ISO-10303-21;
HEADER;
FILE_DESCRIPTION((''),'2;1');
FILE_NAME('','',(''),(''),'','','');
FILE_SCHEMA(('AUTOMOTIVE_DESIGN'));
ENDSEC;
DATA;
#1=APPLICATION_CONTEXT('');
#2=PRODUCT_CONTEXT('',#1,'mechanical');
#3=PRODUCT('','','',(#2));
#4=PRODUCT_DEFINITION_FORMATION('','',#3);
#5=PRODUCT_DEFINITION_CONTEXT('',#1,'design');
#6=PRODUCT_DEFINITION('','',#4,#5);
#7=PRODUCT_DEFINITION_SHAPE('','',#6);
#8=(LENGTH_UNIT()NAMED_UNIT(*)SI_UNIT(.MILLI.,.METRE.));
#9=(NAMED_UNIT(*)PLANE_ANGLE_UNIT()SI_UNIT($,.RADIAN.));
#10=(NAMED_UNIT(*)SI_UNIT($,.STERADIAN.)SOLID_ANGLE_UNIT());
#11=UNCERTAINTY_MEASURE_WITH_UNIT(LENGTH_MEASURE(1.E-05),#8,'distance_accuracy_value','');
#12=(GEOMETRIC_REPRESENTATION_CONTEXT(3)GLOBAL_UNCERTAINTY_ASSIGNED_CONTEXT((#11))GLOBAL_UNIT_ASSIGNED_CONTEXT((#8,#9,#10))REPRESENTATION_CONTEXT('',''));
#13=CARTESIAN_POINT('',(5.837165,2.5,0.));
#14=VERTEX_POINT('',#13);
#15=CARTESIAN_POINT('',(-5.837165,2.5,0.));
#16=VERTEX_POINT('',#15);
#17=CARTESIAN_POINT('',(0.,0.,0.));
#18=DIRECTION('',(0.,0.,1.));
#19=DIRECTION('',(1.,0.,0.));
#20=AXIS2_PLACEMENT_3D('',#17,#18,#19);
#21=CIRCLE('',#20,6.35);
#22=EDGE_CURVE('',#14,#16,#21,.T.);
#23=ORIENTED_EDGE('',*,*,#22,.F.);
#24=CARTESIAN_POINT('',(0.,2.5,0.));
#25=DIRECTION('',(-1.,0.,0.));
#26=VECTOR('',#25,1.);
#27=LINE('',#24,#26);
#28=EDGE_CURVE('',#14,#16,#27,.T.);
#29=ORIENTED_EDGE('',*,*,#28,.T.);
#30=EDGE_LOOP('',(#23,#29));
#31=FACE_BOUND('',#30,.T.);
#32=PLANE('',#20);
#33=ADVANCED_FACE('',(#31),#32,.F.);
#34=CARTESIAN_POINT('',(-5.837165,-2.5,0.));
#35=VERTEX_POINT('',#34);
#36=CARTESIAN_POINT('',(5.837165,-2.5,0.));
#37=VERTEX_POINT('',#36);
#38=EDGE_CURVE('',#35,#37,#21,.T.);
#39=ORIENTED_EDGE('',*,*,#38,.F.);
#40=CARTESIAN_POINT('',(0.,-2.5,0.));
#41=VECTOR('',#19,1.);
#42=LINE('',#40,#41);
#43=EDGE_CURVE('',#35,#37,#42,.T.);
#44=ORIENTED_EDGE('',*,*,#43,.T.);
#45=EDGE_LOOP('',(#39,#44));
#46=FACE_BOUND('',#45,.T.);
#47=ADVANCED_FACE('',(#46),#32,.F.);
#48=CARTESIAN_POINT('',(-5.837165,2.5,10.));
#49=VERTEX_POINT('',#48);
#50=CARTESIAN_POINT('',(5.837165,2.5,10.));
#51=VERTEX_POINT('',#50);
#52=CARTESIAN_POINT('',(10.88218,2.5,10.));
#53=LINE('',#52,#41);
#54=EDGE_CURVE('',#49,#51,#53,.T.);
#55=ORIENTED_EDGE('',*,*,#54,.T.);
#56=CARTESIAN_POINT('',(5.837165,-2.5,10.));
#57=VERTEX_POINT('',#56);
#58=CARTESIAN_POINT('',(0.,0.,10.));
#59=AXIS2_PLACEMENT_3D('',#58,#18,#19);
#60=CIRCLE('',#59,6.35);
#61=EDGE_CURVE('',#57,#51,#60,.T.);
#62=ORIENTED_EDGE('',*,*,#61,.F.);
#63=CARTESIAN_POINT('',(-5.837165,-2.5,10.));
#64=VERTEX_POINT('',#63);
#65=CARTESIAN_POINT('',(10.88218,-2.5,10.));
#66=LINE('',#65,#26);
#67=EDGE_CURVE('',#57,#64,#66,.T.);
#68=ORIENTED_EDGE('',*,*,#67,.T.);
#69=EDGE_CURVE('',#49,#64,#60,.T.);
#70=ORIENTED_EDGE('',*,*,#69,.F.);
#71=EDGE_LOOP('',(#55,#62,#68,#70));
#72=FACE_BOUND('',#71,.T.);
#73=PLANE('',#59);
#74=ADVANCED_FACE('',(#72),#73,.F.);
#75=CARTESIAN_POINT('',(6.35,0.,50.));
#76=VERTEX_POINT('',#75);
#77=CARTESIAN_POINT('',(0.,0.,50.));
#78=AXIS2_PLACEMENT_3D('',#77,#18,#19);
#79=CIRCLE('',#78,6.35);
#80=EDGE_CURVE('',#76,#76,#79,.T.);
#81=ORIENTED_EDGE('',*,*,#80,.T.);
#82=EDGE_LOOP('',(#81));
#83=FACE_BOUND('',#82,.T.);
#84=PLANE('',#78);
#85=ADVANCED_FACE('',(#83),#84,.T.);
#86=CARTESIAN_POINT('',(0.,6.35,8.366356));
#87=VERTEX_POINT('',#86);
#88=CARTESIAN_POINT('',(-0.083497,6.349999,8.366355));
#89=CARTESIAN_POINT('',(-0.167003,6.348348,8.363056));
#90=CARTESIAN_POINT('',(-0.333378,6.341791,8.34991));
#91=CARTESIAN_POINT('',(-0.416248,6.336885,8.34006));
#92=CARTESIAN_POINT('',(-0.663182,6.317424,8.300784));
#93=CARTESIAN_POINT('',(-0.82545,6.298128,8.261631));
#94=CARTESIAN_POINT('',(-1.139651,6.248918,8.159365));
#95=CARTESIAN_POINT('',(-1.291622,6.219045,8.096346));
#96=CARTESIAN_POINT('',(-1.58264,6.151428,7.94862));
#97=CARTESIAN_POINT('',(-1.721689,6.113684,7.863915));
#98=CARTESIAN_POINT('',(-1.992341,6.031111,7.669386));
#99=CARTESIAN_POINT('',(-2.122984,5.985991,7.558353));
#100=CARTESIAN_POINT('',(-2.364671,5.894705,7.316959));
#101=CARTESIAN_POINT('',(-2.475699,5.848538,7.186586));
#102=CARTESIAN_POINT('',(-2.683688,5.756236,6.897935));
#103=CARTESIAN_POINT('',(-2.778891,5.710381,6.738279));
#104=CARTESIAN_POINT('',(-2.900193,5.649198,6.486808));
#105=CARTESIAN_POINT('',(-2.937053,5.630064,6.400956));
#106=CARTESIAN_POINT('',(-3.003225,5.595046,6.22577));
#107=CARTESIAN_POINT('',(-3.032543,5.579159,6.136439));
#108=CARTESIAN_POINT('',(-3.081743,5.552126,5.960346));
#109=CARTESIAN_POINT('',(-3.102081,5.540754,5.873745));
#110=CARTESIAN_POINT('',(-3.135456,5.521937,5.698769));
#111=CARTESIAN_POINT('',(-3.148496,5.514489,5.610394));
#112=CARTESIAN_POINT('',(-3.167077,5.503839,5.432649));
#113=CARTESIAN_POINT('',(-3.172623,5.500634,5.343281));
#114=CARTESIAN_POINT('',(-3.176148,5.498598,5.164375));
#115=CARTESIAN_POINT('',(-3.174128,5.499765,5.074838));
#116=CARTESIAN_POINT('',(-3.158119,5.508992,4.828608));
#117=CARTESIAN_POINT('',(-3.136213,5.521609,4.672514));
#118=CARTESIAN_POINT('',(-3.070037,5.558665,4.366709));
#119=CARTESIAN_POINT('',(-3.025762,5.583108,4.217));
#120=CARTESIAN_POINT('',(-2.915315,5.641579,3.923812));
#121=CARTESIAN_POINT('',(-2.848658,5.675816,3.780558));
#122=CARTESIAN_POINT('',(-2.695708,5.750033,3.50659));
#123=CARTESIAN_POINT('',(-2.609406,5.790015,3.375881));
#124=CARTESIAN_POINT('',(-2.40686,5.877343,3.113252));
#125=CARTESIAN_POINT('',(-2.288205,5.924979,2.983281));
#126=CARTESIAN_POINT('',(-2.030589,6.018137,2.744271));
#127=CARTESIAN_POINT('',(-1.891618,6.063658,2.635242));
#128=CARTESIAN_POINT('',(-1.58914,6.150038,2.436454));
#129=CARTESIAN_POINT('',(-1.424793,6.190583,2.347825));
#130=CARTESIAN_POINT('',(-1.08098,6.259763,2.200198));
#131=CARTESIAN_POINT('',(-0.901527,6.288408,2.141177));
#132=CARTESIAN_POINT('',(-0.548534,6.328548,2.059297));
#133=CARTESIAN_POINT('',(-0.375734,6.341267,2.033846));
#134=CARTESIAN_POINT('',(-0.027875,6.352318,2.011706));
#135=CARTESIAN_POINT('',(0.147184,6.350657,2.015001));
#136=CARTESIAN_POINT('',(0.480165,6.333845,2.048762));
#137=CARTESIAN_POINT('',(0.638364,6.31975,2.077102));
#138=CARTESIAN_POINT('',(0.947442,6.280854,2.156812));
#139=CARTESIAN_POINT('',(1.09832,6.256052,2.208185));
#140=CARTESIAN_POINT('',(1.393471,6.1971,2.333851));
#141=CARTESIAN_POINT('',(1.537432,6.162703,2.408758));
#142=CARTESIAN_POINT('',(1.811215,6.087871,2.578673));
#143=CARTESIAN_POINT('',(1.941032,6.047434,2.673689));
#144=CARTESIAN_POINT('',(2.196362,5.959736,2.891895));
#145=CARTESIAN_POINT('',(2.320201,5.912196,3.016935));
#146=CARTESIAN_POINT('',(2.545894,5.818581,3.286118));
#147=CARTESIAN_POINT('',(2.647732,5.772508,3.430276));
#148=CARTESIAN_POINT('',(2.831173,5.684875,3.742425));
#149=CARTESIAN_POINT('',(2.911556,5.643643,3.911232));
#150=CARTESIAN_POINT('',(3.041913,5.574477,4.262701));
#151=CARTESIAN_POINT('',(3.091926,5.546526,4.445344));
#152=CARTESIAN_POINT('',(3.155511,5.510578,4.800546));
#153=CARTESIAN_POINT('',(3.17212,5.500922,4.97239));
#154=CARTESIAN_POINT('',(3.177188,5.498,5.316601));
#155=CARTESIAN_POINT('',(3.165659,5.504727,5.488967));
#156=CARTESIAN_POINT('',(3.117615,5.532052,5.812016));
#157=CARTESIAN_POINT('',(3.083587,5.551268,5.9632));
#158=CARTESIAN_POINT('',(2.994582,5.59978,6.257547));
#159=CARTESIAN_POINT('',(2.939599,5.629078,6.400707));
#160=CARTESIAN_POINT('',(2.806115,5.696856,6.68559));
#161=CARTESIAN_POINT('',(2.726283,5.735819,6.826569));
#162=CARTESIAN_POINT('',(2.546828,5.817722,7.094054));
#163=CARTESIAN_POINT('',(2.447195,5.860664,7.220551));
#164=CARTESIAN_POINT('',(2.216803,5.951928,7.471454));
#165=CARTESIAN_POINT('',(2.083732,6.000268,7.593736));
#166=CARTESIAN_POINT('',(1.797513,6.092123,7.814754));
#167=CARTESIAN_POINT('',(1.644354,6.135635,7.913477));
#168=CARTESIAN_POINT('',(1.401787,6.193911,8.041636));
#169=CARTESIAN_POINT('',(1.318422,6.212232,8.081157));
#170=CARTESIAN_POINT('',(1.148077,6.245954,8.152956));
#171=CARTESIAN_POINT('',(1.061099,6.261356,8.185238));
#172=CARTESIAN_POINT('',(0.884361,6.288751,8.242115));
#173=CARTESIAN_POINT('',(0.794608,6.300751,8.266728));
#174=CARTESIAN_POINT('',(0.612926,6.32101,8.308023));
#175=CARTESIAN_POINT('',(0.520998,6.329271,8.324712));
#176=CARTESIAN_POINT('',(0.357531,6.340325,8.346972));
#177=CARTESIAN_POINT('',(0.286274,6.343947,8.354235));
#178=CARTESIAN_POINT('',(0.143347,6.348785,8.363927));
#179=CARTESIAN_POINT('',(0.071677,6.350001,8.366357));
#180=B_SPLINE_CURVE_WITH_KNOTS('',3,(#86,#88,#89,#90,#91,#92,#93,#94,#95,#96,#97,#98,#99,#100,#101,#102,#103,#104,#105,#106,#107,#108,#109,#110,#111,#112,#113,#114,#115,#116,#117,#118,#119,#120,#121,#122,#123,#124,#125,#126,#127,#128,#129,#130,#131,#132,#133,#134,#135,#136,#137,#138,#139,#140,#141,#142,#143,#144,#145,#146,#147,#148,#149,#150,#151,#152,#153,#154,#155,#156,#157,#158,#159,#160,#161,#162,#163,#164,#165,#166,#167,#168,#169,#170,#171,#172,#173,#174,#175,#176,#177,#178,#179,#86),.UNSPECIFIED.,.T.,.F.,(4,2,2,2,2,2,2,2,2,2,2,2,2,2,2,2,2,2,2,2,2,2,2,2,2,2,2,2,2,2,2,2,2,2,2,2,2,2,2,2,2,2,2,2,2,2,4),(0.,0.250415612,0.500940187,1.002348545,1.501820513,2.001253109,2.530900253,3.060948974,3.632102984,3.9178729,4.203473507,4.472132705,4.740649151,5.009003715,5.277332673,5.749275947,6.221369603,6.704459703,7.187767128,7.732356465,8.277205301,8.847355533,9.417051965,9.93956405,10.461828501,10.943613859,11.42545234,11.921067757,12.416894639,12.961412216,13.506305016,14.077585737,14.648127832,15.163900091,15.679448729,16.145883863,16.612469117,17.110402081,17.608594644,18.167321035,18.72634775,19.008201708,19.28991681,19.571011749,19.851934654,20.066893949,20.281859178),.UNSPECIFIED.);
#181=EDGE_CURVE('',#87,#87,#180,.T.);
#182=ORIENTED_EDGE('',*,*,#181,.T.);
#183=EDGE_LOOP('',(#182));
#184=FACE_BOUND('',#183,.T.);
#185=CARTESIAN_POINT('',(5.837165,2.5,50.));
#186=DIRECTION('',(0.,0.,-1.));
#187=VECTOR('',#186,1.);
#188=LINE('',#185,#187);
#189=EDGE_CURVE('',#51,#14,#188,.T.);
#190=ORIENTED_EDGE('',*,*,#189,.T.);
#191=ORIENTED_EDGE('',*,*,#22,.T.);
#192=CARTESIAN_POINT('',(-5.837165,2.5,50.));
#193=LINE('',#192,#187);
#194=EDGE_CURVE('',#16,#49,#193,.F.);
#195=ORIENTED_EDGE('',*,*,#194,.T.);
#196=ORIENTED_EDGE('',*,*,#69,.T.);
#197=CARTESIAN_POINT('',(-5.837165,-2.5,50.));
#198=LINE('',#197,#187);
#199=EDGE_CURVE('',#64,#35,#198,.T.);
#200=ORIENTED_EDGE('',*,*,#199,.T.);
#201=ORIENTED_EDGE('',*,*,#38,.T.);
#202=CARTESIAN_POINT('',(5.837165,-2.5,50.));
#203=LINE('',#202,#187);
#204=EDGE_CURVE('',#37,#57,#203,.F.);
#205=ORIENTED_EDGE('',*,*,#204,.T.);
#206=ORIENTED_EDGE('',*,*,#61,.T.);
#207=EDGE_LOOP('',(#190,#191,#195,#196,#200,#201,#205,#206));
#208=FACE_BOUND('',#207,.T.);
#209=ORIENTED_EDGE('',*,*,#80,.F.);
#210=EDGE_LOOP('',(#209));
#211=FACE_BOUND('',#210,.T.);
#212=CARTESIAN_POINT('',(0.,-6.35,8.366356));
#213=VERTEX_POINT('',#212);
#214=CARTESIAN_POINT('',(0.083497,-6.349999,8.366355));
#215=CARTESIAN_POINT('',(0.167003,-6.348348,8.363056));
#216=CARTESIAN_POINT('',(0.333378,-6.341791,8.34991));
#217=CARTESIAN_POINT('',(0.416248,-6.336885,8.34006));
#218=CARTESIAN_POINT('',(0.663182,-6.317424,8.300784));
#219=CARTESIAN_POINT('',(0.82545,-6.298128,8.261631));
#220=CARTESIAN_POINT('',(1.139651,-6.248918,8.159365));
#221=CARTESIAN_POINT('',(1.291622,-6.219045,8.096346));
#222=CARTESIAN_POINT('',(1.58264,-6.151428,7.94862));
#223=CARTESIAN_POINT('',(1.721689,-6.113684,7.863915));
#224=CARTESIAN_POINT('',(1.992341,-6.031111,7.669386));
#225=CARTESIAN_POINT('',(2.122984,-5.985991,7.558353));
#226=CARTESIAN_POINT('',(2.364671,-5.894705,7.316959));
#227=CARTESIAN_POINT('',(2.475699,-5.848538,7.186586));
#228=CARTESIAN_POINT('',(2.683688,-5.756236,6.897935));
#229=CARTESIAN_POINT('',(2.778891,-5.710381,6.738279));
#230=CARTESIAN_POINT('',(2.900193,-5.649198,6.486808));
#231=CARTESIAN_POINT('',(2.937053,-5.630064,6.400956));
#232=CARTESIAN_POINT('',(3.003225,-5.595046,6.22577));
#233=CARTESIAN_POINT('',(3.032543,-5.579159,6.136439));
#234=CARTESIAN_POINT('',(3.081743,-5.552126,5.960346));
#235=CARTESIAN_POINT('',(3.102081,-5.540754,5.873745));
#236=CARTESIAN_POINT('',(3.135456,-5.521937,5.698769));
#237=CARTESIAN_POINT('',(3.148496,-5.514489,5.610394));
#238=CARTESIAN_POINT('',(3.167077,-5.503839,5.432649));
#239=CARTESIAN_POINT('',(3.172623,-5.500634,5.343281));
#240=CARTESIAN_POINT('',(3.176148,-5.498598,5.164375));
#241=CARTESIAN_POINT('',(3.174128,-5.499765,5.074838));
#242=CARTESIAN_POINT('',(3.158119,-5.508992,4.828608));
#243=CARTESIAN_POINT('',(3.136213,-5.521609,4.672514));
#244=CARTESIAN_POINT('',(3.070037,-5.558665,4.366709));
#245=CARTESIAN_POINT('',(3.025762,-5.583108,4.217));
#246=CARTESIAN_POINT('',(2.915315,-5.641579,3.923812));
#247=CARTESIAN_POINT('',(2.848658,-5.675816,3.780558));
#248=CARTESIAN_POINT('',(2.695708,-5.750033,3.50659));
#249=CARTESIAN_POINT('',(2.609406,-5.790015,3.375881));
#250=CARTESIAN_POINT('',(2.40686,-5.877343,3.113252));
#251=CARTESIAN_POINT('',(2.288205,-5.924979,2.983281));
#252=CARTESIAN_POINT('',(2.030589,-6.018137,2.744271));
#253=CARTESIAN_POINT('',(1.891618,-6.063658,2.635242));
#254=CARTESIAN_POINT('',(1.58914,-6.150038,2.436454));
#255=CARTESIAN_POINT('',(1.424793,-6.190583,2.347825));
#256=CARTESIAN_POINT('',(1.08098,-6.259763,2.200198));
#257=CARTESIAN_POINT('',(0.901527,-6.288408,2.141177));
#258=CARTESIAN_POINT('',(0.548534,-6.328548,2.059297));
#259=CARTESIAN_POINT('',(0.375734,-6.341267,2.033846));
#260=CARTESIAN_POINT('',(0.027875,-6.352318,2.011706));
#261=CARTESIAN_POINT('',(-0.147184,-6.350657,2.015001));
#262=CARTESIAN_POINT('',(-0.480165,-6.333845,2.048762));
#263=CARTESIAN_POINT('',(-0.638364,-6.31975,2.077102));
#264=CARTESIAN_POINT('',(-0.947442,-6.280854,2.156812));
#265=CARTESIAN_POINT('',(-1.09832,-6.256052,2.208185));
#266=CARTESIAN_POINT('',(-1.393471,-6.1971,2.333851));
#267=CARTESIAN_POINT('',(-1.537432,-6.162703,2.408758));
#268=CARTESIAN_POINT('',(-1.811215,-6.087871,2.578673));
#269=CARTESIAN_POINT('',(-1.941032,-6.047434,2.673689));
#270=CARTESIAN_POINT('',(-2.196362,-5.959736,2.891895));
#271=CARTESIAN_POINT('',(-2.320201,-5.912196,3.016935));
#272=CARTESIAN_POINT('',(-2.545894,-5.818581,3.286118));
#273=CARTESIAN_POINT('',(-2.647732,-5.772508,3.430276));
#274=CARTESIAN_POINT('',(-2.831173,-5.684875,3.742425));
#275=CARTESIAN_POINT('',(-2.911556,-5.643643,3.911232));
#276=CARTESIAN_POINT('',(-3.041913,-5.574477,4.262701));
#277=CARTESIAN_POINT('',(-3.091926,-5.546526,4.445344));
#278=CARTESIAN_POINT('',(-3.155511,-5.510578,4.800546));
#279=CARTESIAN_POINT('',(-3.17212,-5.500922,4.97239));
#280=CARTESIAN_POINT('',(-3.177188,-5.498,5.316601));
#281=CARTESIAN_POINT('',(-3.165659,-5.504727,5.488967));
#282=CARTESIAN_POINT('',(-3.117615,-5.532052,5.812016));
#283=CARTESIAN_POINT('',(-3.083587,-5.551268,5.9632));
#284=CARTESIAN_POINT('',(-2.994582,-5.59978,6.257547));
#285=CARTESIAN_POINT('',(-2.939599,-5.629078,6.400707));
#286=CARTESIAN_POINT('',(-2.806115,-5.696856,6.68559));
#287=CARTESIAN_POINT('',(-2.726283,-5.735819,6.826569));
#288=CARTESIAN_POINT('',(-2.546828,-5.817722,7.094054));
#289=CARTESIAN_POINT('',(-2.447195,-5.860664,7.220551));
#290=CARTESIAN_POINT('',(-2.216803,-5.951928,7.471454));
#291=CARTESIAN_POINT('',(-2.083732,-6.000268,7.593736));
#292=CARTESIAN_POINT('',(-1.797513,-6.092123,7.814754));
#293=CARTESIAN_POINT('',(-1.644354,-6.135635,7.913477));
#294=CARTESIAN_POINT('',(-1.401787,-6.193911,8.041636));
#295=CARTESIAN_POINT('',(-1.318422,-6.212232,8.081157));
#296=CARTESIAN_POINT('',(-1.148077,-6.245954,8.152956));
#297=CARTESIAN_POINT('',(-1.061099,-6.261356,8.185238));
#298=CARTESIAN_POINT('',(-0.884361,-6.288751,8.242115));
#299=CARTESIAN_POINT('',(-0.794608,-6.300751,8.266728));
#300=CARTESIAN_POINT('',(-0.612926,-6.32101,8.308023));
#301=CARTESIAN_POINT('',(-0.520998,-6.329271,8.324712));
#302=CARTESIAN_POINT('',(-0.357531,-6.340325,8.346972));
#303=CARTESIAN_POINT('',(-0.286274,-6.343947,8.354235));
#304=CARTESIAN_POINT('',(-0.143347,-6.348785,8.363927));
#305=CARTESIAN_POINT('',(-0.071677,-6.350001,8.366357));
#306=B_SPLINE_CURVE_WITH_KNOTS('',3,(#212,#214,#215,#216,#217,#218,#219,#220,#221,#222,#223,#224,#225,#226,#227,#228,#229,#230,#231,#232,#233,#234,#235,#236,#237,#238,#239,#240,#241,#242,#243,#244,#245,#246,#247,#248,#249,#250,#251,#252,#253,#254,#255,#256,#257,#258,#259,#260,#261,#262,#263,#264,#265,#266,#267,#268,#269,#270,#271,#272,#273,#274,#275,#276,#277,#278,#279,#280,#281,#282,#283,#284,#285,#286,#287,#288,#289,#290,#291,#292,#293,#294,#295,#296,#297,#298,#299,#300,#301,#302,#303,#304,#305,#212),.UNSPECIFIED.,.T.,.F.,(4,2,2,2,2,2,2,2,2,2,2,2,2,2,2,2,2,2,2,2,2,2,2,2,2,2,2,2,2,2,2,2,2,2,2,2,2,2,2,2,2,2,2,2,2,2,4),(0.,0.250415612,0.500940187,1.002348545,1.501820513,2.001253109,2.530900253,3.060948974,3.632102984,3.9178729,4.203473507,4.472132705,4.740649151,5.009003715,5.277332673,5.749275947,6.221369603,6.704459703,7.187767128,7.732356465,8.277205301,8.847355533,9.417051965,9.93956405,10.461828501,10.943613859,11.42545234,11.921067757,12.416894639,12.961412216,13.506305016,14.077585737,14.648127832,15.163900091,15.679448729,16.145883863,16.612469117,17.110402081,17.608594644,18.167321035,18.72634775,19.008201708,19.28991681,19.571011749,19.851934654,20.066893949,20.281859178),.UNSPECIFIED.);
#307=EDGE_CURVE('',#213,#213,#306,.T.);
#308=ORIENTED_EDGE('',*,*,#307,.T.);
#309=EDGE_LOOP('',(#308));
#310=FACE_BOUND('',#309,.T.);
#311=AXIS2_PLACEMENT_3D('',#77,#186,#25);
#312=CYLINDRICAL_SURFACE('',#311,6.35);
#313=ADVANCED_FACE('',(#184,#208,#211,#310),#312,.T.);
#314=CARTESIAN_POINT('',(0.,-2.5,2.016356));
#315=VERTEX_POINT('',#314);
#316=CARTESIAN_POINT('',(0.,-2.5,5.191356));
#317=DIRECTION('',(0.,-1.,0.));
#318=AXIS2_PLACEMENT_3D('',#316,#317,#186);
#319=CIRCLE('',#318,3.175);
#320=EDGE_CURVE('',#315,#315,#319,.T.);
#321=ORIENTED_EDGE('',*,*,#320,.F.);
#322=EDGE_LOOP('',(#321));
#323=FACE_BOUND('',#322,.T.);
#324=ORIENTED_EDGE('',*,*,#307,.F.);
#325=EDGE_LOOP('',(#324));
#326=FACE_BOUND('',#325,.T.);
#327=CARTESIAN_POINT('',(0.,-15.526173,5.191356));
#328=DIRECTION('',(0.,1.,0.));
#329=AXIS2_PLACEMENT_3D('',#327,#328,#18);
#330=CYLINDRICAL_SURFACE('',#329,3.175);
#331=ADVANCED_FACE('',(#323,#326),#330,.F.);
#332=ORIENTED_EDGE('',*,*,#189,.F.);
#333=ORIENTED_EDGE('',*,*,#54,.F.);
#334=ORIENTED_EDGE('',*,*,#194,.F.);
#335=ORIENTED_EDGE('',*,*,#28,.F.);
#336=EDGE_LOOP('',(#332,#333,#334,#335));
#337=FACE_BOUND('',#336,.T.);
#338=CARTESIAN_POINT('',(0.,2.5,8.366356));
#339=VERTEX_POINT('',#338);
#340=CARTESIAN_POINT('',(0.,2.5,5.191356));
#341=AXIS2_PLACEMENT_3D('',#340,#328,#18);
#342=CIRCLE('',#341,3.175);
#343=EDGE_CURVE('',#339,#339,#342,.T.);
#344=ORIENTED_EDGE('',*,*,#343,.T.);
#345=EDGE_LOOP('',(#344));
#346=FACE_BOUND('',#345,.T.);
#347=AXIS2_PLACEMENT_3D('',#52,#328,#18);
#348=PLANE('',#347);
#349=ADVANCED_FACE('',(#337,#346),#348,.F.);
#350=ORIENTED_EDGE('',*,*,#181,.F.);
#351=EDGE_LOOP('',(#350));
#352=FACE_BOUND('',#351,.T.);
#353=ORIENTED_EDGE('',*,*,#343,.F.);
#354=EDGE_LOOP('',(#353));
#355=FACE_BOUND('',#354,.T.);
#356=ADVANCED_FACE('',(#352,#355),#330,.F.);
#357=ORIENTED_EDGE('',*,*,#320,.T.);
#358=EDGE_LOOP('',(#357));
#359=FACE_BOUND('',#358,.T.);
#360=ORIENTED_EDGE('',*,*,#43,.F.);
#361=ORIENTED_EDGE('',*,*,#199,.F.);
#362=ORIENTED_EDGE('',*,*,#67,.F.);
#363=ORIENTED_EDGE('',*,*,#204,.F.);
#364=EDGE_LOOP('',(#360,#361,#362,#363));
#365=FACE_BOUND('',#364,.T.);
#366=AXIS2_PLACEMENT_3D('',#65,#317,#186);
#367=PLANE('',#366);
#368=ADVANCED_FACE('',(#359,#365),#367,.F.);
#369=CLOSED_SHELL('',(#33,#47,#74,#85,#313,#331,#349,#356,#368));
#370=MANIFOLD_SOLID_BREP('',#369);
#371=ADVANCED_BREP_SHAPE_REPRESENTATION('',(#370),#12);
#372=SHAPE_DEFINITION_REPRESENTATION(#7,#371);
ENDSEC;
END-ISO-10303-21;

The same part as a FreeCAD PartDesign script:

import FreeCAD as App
import Part
import Sketcher
from FreeCAD import Vector
Q = App.Units.Quantity


def add_polygon(sketch, points):
    """Adds a closed chain of lines whose ends are joined by coincident constraints."""
    first, n = sketch.GeometryCount, len(points)
    for a, b in zip(points, points[1:] + points[:1]):
        sketch.addGeometry(Part.LineSegment(App.Vector(*a, 0), App.Vector(*b, 0)), False)
    for i in range(n):
        sketch.addConstraint(Sketcher.Constraint("Coincident", first + i, 2, first + (i + 1) % n, 1))

doc = App.newDocument("Part")
params = doc.addObject("Spreadsheet::Sheet", "Params")
for row, (alias, value) in enumerate([
    ("sketch1_diameter", "12.7 mm"),
    ("pad1_length", "50 mm"),
    ("sketch2_height", "5 mm"),
    ("pocket1_length", "10 mm"),
    ("sketch3_diameter", "6.35 mm"),
], start=1):
    params.set(f"A{row}", alias)
    params.set(f"B{row}", "=" + value)
    params.setAlias(f"B{row}", alias)

body = doc.addObject("PartDesign::Body", "Body")

sketch1 = body.newObject("Sketcher::SketchObject", "Sketch")
sketch1.AttachmentSupport = (doc.getObject("XY_Plane"), [""])
sketch1.MapMode = "FlatFace"
sketch1.addGeometry(Part.Circle(Vector(0, 0, 0), Vector(0, 0, 1), 6), False)
sketch1.addConstraint([
    Sketcher.Constraint("Coincident", 0, 3, -1, 1),
    Sketcher.Constraint("Diameter", 0, Q("12.7 mm")),
])
sketch1.setExpression("Constraints[1]", "Params.sketch1_diameter")
pad1 = body.newObject("PartDesign::Pad", "Pad")
pad1.Profile = sketch1
pad1.setExpression("Length", "Params.pad1_length")

sketch2 = body.newObject("Sketcher::SketchObject", "Sketch001")
sketch2.AttachmentSupport = (doc.getObject("XY_Plane"), [""])
sketch2.MapMode = "FlatFace"
add_polygon(sketch2, [(11, 2), (11, -2), (-11, -2), (-11, 2)])
sketch2.addConstraint([
    Sketcher.Constraint("Vertical", 0),
    Sketcher.Constraint("Horizontal", 1),
    Sketcher.Constraint("Vertical", 2),
    Sketcher.Constraint("Horizontal", 3),
    Sketcher.Constraint("Symmetric", 0, 2, 2, 2, -1, 1),
    Sketcher.Constraint("DistanceY", 0, 2, 0, 1, Q("5 mm")),
    Sketcher.Constraint("DistanceX", 1, 2, 1, 1, Q("21.76436 mm")),
])
sketch2.setExpression("Constraints[9]", "Params.sketch2_height")
pocket1 = body.newObject("PartDesign::Pocket", "Pocket")
pocket1.Profile = sketch2
pocket1.setExpression("Length", "Params.pocket1_length")
pocket1.Reversed = True

sketch3 = body.newObject("Sketcher::SketchObject", "Sketch002")
sketch3.AttachmentSupport = (doc.getObject("XZ_Plane"), [""])
sketch3.MapMode = "FlatFace"
sketch3.addGeometry(Part.Circle(Vector(0, 5.2, 0), Vector(0, 0, 1), 3.2), False)
sketch3.addConstraint([
    Sketcher.Constraint("PointOnObject", 0, 3, -2),
    Sketcher.Constraint("Diameter", 0, Q("6.35 mm")),
    Sketcher.Constraint("DistanceY", -1, 1, 0, 3, Q("5.191356 mm")),
])
sketch3.setExpression("Constraints[1]", "Params.sketch3_diameter")
pocket2 = body.newObject("PartDesign::Pocket", "Pocket001")
pocket2.Profile = sketch3
pocket2.Type = "ThroughAll"
pocket2.Midplane = True

doc.recompute()
